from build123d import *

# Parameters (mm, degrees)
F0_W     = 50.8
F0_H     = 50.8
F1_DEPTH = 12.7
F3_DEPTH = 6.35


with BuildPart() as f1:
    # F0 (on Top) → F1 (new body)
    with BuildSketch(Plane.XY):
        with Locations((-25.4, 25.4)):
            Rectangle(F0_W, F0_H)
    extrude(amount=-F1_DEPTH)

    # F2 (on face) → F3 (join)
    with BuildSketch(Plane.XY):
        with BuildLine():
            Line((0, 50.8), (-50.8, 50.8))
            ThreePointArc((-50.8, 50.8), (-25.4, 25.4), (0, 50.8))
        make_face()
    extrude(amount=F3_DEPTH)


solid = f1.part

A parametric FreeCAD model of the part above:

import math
import FreeCAD as App
import Part
import Sketcher
Q = App.Units.Quantity

doc = App.newDocument("Part")
body = doc.addObject("PartDesign::Body", "Body")

# Sketch on XY plane
sketch1 = body.newObject("Sketcher::SketchObject", "Sketch")
sketch1.AttachmentSupport = (doc.getObject("XY_Plane"), [""])
sketch1.MapMode = "FlatFace"
sketch1.addGeometry(Part.LineSegment(App.Vector(-51, 51, 0), App.Vector(-51, 0, 0)), False)
sketch1.addGeometry(Part.LineSegment(App.Vector(-51, 0, 0), App.Vector(0, 0, 0)), False)
sketch1.addGeometry(Part.LineSegment(App.Vector(0, 0, 0), App.Vector(0, 51, 0)), False)
sketch1.addGeometry(Part.LineSegment(App.Vector(0, 51, 0), App.Vector(-51, 51, 0)), False)
sketch1.addConstraint(Sketcher.Constraint("Coincident", 0, 2, 1, 1))
sketch1.addConstraint(Sketcher.Constraint("Coincident", 1, 2, 2, 1))
sketch1.addConstraint(Sketcher.Constraint("Coincident", 2, 2, 3, 1))
sketch1.addConstraint(Sketcher.Constraint("Coincident", 3, 2, 0, 1))
sketch1.addConstraint(Sketcher.Constraint("Vertical", 0))
sketch1.addConstraint(Sketcher.Constraint("Horizontal", 1))
sketch1.addConstraint(Sketcher.Constraint("Vertical", 2))
sketch1.addConstraint(Sketcher.Constraint("Horizontal", 3))
sketch1.addConstraint(Sketcher.Constraint("Coincident", 1, 2, -1, 1))
sketch1.addConstraint(Sketcher.Constraint("Equal", 3, 0))
sketch1.addConstraint(Sketcher.Constraint("DistanceX", 1, 1, 1, 2, Q("2 in")))
pad1 = body.newObject("PartDesign::Pad", "Pad")
pad1.Profile = sketch1
pad1.Length = Q("0.5 in")
pad1.Reversed = True

# Sketch on XY plane
sketch2 = body.newObject("Sketcher::SketchObject", "Sketch001")
sketch2.AttachmentSupport = (doc.getObject("XY_Plane"), [""])
sketch2.MapMode = "FlatFace"
sketch2.addGeometry(Part.LineSegment(App.Vector(0, 51, 0), App.Vector(-51, 51, 0)), False)
sketch2.addGeometry(Part.ArcOfCircle(Part.Circle(App.Vector(-25, 51, 0), App.Vector(0, 0, 1), 25), math.radians(180), math.radians(360)), False)
sketch2.addConstraint(Sketcher.Constraint("Coincident", 0, 1, 1, 2))
sketch2.addConstraint(Sketcher.Constraint("Coincident", 1, 1, 0, 2))
sketch2.addConstraint(Sketcher.Constraint("Horizontal", 0))
sketch2.addConstraint(Sketcher.Constraint("PointOnObject", 0, 1, -2))
sketch2.addConstraint(Sketcher.Constraint("Horizontal", 1, 3, 0, 1))
sketch2.addConstraint(Sketcher.Constraint("Radius", 1, Q("1 in")))
sketch2.addConstraint(Sketcher.Constraint("DistanceY", -1, 1, 1, 3, Q("2 in")))
pad2 = body.newObject("PartDesign::Pad", "Pad001")
pad2.Profile = sketch2
pad2.Length = Q("0.25 in")

doc.recompute()
